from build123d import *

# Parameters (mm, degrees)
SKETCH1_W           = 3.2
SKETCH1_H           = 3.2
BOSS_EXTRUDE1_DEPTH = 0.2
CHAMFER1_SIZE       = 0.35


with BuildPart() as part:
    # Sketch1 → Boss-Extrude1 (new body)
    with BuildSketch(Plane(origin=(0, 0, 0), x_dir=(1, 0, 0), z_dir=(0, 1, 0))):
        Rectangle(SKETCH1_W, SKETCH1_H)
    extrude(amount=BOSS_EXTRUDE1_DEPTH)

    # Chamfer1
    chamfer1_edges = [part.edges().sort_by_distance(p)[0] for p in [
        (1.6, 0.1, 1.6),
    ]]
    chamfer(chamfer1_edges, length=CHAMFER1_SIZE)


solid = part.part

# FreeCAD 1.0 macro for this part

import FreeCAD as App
import Part
import Sketcher
from FreeCAD import Vector
Q = App.Units.Quantity


def edges_at(feature, points):
    """Names of the edges that pass closest to the given points."""
    edges = feature.Shape.Edges
    near = lambda p: min(range(len(edges)), key=lambda i: edges[i].distToShape(Part.Vertex(*p))[0])
    return sorted({f"Edge{near(p) + 1}" for p in points})


def add_polygon(sketch, points):
    """Adds a closed chain of lines whose ends are joined by coincident constraints."""
    first, n = sketch.GeometryCount, len(points)
    for a, b in zip(points, points[1:] + points[:1]):
        sketch.addGeometry(Part.LineSegment(App.Vector(*a, 0), App.Vector(*b, 0)), False)
    for i in range(n):
        sketch.addConstraint(Sketcher.Constraint("Coincident", first + i, 2, first + (i + 1) % n, 1))

doc = App.newDocument("Part")
body = doc.addObject("PartDesign::Body", "Body")

# Sketch on XZ plane
sketch1 = doc.addObject("Sketcher::SketchObject", "Sketch")
body.addObject(sketch1)
sketch1.AttachmentSupport = (doc.XZ_Plane, [""])
sketch1.MapMode = "FlatFace"
add_polygon(sketch1, [(-1.6, -1.6), (-1.6, 1.6), (1.6, 1.6), (1.6, -1.6)])  # lines 0-3
sketch1.addConstraint([
    Sketcher.Constraint("Vertical", 0),
    Sketcher.Constraint("Horizontal", 1),
    Sketcher.Constraint("Vertical", 2),
    Sketcher.Constraint("Horizontal", 3),
    Sketcher.Constraint("Symmetric", 0, 2, 2, 2, -1, 1),
    Sketcher.Constraint("Equal", 3, 0),
    Sketcher.Constraint("DistanceX", 1, 1, 1, 2, Q("3.2 mm")),
])
pad1 = doc.addObject("PartDesign::Pad", "Pad")
body.addObject(pad1)
pad1.Profile = sketch1
pad1.Length = 0.2
pad1.Reversed = True
doc.recompute()

chamfer = doc.addObject("PartDesign::Chamfer", "Chamfer")
body.addObject(chamfer)
chamfer.Base = (pad1, edges_at(pad1, [(1.6, 0.1, 1.6)]))
chamfer.Size = 0.35

doc.recompute()
